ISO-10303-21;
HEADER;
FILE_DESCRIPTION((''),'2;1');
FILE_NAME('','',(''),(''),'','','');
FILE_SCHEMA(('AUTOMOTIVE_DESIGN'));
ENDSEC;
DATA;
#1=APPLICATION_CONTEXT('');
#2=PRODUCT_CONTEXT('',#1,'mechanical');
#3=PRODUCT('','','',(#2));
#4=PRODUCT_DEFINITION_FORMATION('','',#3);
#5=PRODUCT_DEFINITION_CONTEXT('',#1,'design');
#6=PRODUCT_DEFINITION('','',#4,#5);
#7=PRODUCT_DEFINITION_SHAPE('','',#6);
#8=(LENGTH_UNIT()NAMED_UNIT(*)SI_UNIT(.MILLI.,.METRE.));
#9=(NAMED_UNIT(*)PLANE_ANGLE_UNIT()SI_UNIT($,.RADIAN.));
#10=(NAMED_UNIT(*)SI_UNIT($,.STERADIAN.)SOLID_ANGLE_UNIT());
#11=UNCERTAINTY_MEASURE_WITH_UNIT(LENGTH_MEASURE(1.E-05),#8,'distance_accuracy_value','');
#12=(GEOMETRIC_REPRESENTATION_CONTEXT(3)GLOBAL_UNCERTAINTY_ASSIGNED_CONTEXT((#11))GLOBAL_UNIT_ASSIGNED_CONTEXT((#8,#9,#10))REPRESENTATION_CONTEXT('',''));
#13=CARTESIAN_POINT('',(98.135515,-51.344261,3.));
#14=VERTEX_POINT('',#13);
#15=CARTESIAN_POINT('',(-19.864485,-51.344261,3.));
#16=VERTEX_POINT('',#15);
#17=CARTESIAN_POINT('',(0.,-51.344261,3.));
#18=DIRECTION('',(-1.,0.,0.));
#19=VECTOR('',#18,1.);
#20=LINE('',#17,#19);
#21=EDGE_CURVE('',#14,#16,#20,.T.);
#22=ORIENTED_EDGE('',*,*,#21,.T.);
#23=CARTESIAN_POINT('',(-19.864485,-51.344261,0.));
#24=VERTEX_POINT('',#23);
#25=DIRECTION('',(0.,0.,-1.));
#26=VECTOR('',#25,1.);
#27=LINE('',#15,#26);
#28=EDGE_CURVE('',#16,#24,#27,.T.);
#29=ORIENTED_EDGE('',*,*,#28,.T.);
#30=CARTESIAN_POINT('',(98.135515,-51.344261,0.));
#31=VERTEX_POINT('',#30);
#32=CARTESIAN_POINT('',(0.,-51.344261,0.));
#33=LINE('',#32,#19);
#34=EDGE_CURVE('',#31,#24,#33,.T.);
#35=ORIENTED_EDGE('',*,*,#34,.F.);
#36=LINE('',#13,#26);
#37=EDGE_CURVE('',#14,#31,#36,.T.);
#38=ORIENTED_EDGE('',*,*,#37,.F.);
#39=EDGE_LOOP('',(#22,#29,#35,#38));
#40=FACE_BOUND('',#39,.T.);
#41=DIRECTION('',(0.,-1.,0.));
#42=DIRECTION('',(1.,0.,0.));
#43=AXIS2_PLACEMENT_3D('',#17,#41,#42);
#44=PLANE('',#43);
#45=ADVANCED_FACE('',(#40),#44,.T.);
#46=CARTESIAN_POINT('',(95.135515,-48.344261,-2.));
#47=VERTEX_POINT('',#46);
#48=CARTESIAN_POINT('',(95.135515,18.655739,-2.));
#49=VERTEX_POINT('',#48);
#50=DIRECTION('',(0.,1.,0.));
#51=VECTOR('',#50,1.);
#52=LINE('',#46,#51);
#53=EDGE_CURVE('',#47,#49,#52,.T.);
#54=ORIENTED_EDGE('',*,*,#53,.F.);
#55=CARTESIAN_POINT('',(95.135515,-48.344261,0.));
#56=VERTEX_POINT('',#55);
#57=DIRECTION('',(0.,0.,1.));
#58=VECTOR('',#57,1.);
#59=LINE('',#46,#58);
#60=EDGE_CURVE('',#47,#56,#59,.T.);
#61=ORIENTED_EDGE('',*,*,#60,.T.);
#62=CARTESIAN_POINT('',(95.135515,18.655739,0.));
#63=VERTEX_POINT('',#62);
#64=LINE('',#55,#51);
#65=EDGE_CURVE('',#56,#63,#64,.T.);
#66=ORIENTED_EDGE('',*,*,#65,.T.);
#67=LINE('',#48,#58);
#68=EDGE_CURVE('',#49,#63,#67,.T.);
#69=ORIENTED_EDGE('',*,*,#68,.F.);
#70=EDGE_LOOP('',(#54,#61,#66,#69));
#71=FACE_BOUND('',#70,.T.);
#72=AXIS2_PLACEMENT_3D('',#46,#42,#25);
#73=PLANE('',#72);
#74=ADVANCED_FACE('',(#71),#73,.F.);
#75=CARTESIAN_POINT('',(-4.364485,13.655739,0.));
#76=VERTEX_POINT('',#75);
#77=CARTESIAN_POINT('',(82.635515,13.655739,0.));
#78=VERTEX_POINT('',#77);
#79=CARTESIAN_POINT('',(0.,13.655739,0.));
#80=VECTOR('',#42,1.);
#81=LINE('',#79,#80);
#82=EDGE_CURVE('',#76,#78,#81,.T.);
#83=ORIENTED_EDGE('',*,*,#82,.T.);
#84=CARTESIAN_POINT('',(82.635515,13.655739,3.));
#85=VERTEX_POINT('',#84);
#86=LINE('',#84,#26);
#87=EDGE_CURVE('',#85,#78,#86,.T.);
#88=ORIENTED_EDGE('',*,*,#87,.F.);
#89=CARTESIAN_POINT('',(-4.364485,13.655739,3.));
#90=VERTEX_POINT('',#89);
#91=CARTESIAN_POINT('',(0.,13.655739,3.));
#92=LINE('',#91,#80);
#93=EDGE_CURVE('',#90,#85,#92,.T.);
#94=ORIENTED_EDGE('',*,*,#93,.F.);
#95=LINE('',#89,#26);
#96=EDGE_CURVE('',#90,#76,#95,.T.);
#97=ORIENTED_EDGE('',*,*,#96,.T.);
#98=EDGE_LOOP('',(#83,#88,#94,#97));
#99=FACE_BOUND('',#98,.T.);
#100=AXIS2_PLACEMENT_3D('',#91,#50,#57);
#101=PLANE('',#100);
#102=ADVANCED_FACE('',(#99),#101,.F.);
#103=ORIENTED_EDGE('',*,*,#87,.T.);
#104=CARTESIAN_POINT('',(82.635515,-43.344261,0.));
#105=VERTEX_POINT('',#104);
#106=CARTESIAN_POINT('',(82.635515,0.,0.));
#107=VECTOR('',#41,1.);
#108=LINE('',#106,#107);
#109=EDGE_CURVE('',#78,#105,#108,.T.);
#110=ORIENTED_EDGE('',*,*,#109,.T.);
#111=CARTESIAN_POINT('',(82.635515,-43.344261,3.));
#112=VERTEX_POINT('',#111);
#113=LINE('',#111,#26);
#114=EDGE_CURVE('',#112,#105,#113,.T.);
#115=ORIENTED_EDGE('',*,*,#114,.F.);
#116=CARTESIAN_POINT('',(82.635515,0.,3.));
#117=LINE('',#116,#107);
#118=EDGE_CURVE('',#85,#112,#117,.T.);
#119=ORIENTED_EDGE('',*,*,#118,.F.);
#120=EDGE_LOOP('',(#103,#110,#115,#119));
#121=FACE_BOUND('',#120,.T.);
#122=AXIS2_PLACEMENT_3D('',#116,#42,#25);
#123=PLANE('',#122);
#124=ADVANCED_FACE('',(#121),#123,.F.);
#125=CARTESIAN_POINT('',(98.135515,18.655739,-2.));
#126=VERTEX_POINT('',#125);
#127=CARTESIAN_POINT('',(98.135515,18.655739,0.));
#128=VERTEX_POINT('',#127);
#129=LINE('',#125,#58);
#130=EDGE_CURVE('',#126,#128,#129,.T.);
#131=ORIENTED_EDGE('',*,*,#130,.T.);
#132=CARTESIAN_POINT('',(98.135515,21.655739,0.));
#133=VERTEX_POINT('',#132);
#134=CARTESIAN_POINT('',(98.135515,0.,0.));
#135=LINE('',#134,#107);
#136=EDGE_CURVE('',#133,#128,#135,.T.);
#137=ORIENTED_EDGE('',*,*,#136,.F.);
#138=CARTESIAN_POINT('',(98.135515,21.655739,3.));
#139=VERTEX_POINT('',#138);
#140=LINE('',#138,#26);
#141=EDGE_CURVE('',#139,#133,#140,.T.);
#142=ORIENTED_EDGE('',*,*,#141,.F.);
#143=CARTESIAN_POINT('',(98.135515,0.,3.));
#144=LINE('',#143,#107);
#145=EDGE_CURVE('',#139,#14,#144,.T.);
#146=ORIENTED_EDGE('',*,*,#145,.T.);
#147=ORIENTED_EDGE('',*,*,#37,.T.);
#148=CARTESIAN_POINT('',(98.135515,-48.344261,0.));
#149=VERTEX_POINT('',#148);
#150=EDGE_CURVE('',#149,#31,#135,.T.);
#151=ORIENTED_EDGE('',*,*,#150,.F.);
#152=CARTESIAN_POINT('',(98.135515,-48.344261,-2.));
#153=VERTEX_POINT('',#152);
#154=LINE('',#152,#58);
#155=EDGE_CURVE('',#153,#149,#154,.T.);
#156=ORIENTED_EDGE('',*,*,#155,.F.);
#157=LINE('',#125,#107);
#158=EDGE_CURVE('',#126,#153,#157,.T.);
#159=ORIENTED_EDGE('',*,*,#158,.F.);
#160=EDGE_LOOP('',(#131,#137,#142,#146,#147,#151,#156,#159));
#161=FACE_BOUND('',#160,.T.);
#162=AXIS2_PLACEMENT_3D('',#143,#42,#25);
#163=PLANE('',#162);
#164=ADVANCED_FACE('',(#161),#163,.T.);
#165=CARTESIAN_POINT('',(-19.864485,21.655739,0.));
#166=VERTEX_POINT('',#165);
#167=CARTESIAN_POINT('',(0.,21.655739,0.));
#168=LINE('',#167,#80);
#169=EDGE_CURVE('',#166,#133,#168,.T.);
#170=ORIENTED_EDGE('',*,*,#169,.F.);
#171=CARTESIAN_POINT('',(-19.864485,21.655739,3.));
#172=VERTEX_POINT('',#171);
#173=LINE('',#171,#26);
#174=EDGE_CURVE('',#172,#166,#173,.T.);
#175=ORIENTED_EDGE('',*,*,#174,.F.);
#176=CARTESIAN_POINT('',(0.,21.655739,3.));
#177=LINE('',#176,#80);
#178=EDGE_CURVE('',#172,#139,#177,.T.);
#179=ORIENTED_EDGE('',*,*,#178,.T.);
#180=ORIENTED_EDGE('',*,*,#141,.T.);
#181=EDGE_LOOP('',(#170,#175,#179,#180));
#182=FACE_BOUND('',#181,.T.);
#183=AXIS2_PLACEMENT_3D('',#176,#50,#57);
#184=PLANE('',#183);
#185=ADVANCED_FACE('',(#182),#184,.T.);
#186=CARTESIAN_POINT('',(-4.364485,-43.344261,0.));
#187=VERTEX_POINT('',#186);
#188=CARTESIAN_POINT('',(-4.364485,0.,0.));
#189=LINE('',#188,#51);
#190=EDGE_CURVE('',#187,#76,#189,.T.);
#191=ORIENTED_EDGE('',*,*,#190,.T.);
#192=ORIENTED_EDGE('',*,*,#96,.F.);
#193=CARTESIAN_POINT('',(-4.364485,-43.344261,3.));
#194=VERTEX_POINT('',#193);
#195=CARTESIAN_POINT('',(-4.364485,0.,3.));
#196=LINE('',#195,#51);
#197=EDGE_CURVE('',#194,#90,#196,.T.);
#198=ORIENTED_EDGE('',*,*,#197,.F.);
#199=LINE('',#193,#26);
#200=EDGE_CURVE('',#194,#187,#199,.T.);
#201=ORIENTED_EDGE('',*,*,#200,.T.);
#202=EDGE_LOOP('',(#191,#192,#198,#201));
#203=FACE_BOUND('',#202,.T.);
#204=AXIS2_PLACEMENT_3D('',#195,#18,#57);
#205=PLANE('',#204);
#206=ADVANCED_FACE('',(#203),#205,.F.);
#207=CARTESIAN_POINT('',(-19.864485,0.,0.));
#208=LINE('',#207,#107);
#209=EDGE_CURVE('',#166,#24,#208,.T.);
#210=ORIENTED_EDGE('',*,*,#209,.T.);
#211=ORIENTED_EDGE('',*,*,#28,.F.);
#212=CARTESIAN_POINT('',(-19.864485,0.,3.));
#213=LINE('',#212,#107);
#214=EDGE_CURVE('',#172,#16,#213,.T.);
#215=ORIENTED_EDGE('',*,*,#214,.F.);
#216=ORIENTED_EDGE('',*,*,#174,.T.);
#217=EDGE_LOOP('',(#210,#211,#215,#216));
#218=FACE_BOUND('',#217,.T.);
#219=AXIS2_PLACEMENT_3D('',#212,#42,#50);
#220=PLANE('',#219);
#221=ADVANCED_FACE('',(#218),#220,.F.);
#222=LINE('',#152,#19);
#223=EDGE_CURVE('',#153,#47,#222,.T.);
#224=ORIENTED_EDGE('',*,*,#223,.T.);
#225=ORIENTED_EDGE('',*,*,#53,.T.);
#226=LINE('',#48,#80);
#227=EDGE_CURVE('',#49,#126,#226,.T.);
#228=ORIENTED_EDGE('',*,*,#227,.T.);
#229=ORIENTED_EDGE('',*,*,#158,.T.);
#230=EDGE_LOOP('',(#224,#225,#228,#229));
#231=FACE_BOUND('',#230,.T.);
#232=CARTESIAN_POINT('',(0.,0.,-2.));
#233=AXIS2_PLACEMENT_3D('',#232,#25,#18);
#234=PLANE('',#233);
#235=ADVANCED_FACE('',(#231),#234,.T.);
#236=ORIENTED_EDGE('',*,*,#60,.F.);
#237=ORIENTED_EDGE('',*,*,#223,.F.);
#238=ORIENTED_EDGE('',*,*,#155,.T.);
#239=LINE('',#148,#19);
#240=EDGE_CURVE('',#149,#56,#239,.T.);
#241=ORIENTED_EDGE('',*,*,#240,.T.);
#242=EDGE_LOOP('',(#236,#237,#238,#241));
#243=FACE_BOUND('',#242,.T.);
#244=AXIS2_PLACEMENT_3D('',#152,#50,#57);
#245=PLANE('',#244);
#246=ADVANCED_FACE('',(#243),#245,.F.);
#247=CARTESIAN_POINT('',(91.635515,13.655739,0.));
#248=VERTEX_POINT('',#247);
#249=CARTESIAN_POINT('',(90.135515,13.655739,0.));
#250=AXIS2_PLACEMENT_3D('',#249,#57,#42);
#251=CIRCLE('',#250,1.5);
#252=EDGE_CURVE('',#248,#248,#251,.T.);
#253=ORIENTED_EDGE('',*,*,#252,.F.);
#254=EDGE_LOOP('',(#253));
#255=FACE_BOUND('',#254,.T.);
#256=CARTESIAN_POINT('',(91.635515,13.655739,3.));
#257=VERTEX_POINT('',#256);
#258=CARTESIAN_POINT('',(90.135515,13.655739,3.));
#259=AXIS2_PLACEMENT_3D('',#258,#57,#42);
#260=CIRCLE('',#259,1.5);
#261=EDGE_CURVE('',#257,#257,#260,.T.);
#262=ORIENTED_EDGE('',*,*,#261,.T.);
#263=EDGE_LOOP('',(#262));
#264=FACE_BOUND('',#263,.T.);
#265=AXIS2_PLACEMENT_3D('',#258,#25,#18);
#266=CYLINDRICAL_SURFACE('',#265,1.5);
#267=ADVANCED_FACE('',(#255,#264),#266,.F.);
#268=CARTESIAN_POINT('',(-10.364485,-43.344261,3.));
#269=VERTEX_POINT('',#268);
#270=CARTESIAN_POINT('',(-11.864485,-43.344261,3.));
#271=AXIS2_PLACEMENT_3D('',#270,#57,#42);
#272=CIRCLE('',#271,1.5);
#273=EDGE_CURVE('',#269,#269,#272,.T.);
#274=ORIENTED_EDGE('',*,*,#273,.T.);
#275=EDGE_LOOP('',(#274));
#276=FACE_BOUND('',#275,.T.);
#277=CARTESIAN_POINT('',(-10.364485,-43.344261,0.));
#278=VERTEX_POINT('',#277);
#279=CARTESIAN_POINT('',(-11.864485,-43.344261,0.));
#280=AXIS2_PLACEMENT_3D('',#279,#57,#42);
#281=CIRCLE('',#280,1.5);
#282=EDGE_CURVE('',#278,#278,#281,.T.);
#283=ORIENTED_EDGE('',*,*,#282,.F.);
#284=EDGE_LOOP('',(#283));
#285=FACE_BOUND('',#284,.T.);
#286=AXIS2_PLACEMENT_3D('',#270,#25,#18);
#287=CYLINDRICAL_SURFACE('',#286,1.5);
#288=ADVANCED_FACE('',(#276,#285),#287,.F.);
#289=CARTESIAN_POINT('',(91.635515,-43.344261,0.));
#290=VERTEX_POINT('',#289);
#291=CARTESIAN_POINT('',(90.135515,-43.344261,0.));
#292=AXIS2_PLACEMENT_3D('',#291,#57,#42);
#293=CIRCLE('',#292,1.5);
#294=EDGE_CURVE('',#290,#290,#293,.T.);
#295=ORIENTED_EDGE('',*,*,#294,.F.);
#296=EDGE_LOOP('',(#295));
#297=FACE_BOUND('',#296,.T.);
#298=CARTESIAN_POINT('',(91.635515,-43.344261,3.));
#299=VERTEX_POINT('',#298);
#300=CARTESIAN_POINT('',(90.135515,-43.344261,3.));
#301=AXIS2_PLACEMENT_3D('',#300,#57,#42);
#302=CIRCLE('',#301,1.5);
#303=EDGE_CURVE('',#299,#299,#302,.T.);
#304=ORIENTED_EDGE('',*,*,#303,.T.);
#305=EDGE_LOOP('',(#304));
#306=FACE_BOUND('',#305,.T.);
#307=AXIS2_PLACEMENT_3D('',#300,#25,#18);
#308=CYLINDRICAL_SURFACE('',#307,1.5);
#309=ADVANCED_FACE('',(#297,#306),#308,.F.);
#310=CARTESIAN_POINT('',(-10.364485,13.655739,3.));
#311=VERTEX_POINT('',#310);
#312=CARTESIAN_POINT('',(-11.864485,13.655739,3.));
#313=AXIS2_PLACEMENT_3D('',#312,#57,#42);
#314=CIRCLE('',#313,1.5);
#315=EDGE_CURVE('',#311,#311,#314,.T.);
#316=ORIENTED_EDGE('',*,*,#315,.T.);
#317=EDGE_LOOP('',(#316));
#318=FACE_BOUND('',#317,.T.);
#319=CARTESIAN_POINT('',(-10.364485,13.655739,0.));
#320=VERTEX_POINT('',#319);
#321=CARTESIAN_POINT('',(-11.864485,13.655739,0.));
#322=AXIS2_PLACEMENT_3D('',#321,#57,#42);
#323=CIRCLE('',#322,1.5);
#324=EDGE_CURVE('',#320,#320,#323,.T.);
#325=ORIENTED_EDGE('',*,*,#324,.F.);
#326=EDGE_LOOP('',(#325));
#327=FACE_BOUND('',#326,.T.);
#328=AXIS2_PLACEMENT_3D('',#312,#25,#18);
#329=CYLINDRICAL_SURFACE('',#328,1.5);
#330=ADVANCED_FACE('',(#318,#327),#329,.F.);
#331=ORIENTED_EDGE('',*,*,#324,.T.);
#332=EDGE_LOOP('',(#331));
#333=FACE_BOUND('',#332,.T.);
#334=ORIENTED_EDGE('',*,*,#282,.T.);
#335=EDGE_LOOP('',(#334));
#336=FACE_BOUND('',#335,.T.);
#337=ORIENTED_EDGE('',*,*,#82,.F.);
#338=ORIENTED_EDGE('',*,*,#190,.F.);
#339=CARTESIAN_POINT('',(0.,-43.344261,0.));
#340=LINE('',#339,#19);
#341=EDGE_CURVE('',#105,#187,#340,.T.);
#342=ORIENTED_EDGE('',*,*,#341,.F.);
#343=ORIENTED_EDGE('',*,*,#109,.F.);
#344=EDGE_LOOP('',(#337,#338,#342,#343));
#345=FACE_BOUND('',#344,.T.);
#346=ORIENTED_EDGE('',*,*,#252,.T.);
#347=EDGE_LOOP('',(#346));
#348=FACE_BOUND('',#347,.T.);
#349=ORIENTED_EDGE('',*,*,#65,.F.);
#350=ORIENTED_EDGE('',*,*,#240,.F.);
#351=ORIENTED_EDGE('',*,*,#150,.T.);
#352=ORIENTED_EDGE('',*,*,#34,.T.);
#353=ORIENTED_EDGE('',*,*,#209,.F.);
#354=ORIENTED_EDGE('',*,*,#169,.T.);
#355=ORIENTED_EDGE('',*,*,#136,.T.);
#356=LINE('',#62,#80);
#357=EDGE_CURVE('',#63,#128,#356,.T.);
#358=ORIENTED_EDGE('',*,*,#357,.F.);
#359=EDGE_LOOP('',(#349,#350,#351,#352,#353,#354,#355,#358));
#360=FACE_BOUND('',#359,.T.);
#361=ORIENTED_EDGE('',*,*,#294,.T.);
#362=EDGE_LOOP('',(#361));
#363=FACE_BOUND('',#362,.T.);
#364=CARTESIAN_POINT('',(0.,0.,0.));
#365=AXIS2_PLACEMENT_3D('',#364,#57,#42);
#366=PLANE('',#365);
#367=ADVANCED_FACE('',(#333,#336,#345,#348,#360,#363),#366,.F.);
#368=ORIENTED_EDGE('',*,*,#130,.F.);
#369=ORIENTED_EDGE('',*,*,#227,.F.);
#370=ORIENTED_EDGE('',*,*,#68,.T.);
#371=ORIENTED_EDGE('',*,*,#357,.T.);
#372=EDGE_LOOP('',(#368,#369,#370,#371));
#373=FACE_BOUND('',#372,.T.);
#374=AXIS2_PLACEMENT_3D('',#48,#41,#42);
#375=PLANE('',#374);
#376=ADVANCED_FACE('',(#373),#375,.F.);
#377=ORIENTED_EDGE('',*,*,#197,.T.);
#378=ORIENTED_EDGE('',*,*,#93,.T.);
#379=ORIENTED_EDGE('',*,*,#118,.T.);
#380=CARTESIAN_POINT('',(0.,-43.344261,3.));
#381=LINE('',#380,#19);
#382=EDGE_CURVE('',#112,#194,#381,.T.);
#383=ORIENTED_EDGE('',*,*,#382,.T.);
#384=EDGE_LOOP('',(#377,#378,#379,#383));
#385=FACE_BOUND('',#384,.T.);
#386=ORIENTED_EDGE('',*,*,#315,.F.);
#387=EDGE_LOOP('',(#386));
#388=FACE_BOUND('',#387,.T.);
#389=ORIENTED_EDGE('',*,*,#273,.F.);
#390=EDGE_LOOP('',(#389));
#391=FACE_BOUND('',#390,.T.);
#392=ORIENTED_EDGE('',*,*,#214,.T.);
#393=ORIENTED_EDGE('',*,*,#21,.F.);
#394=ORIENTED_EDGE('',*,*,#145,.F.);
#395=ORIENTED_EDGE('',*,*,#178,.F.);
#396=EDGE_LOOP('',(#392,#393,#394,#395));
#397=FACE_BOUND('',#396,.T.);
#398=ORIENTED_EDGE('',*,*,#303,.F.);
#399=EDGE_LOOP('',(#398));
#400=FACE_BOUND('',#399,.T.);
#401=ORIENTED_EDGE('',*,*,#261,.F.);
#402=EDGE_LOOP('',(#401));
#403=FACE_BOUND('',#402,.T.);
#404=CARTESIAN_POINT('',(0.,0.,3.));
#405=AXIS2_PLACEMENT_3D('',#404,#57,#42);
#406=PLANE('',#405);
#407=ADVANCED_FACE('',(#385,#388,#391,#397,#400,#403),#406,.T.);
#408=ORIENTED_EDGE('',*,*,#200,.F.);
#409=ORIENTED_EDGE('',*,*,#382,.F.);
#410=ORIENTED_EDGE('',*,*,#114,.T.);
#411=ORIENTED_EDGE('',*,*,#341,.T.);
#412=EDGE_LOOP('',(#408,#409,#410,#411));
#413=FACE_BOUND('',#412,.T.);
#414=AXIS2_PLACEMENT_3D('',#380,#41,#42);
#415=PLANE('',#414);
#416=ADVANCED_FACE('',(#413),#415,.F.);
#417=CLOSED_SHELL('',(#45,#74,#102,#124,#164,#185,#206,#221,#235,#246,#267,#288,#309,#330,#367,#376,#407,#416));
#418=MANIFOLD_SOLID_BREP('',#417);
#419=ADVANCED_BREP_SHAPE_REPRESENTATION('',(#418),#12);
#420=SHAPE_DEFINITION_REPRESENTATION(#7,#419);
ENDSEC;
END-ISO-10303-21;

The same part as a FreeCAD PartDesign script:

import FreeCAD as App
import Part
import Sketcher
Q = App.Units.Quantity


def add_polygon(sketch, points):
    """Adds a closed chain of lines whose ends are joined by coincident constraints."""
    first, n = sketch.GeometryCount, len(points)
    for a, b in zip(points, points[1:] + points[:1]):
        sketch.addGeometry(Part.LineSegment(App.Vector(*a, 0), App.Vector(*b, 0)), False)
    for i in range(n):
        sketch.addConstraint(Sketcher.Constraint("Coincident", first + i, 2, first + (i + 1) % n, 1))

doc = App.newDocument("Part")
params = doc.addObject("Spreadsheet::Sheet", "Params")
for row, (alias, value) in enumerate([
    ("sketch1_diameter", "3 mm"),
    ("sketch1_width", "118 mm"),
    ("sketch1_width2", "87 mm"),
    ("sketch1_height", "73 mm"),
    ("sketch1_height2", "57 mm"),
    ("pad1_length", "3 mm"),
    ("sketch2_width", "3 mm"),
    ("sketch2_height", "67 mm"),
    ("pad2_length", "2 mm"),
], start=1):
    params.set(f"A{row}", alias)
    params.set(f"B{row}", "=" + value)
    params.setAlias(f"B{row}", alias)

body = doc.addObject("PartDesign::Body", "Body")

sketch1 = body.newObject("Sketcher::SketchObject", "Sketch")
sketch1.AttachmentSupport = (doc.getObject("XY_Plane"), [""])
sketch1.MapMode = "FlatFace"
add_polygon(sketch1, [(-19.9, 21.7), (-19.9, -51.3), (98.1, -51.3), (98.1, 21.7)])
sketch1.addGeometry(Part.Circle(App.Vector(-11.9, -43.3, 0), App.Vector(0, 0, 1), 1.5), False)
sketch1.addGeometry(Part.Circle(App.Vector(90.1, -43.3, 0), App.Vector(0, 0, 1), 1.5), False)
sketch1.addGeometry(Part.Circle(App.Vector(-11.9, 13.7, 0), App.Vector(0, 0, 1), 1.5), False)
add_polygon(sketch1, [(82.6, -43.3), (-4.4, -43.3), (-4.4, 13.7), (82.6, 13.7)])
sketch1.addGeometry(Part.Circle(App.Vector(90.1, 13.7, 0), App.Vector(0, 0, 1), 1.5), False)
sketch1.addConstraint(Sketcher.Constraint("Vertical", 0))
sketch1.addConstraint(Sketcher.Constraint("Horizontal", 1))
sketch1.addConstraint(Sketcher.Constraint("Vertical", 2))
sketch1.addConstraint(Sketcher.Constraint("Horizontal", 3))
sketch1.addConstraint(Sketcher.Constraint("Horizontal", 7))
sketch1.addConstraint(Sketcher.Constraint("Vertical", 8))
sketch1.addConstraint(Sketcher.Constraint("Horizontal", 9))
sketch1.addConstraint(Sketcher.Constraint("Vertical", 10))
sketch1.addConstraint(Sketcher.Constraint("Equal", 4, 5))
sketch1.addConstraint(Sketcher.Constraint("Equal", 5, 6))
sketch1.addConstraint(Sketcher.Constraint("Equal", 6, 11))
sketch1.addConstraint(Sketcher.Constraint("Horizontal", 4, 3, 5, 3))
sketch1.addConstraint(Sketcher.Constraint("Horizontal", 6, 3, 11, 3))
sketch1.addConstraint(Sketcher.Constraint("Horizontal", 5, 3, 7, 2))
sketch1.addConstraint(Sketcher.Constraint("Horizontal", 11, 3, 8, 2))
sketch1.addConstraint(Sketcher.Constraint("Vertical", 4, 3, 6, 3))
sketch1.addConstraint(Sketcher.Constraint("Vertical", 5, 3, 11, 3))
sketch1.addConstraint(Sketcher.Constraint("Diameter", 4, Q("3 mm")))
sketch1.addConstraint(Sketcher.Constraint("DistanceX", 1, 1, 1, 2, Q("118 mm")))
sketch1.addConstraint(Sketcher.Constraint("DistanceX", 7, 2, 7, 1, Q("87 mm")))
sketch1.addConstraint(Sketcher.Constraint("DistanceY", 0, 2, 0, 1, Q("73 mm")))
sketch1.addConstraint(Sketcher.Constraint("DistanceY", 8, 1, 8, 2, Q("57 mm")))
sketch1.addConstraint(Sketcher.Constraint("DistanceX", 4, 3, 5, 3, Q("102 mm")))
sketch1.addConstraint(Sketcher.Constraint("DistanceX", 0, 2, 4, 3, Q("8 mm")))
sketch1.addConstraint(Sketcher.Constraint("DistanceY", 0, 2, 4, 3, Q("8 mm")))
sketch1.addConstraint(Sketcher.Constraint("DistanceX", 4, 3, 7, 2, Q("7.5 mm")))
sketch1.addConstraint(Sketcher.Constraint("DistanceY", 4, 3, -1, 1, Q("43.344261 mm")))
sketch1.addConstraint(Sketcher.Constraint("DistanceX", 4, 3, -1, 1, Q("11.864485 mm")))
sketch1.setExpression("Constraints[25]", "Params.sketch1_diameter")
sketch1.setExpression("Constraints[26]", "Params.sketch1_width")
sketch1.setExpression("Constraints[27]", "Params.sketch1_width2")
sketch1.setExpression("Constraints[28]", "Params.sketch1_height")
sketch1.setExpression("Constraints[29]", "Params.sketch1_height2")
pad1 = body.newObject("PartDesign::Pad", "Pad")
pad1.Profile = sketch1
pad1.setExpression("Length", "Params.pad1_length")

sketch2 = body.newObject("Sketcher::SketchObject", "Sketch001")
sketch2.AttachmentSupport = (doc.getObject("XY_Plane"), [""])
sketch2.MapMode = "FlatFace"
add_polygon(sketch2, [(98.1, 18.7), (98.1, -48.3), (95.1, -48.3), (95.1, 18.7)])
sketch2.addConstraint(Sketcher.Constraint("Vertical", 0))
sketch2.addConstraint(Sketcher.Constraint("Horizontal", 1))
sketch2.addConstraint(Sketcher.Constraint("Vertical", 2))
sketch2.addConstraint(Sketcher.Constraint("Horizontal", 3))
sketch2.addConstraint(Sketcher.Constraint("DistanceX", 1, 2, 1, 1, Q("3 mm")))
sketch2.addConstraint(Sketcher.Constraint("DistanceY", 0, 2, 0, 1, Q("67 mm")))
sketch2.addConstraint(Sketcher.Constraint("DistanceY", 0, 2, -1, 1, Q("48.344261 mm")))
sketch2.addConstraint(Sketcher.Constraint("DistanceX", -1, 1, 0, 2, Q("98.135515 mm")))
sketch2.setExpression("Constraints[8]", "Params.sketch2_width")
sketch2.setExpression("Constraints[9]", "Params.sketch2_height")
pad2 = body.newObject("PartDesign::Pad", "Pad001")
pad2.Profile = sketch2
pad2.setExpression("Length", "Params.pad2_length")
pad2.Reversed = True

doc.recompute()
